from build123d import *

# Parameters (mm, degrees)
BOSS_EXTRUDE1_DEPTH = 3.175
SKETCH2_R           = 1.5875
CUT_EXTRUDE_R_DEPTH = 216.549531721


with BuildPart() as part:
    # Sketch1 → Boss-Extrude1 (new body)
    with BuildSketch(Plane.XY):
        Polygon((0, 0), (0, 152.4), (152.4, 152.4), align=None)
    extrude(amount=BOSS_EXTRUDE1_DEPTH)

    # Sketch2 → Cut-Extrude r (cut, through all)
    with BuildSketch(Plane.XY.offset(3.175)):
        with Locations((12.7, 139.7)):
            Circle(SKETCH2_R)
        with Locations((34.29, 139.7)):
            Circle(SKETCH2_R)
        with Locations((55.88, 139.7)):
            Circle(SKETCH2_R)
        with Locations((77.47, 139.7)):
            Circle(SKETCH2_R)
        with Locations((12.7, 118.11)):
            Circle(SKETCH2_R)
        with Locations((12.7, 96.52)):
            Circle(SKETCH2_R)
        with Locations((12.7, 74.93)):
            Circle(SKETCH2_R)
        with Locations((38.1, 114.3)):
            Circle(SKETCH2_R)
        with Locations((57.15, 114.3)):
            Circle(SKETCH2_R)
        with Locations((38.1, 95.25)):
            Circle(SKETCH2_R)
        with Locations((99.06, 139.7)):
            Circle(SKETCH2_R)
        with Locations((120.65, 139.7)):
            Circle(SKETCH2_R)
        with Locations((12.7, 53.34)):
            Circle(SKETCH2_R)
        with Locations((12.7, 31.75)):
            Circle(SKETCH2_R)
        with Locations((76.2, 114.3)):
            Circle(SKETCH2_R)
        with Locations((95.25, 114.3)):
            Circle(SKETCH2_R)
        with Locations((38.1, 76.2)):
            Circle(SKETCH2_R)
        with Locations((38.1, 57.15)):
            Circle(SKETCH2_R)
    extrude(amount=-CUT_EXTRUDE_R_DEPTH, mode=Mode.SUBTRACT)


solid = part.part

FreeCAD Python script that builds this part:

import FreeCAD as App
import Part
import Sketcher
Q = App.Units.Quantity

doc = App.newDocument("Part")
body = doc.addObject("PartDesign::Body", "Body")

sketch1 = body.newObject("Sketcher::SketchObject", "Sketch")
sketch1.AttachmentSupport = (doc.getObject("XY_Plane"), [""])
sketch1.MapMode = "FlatFace"
sketch1.addGeometry(Part.LineSegment(App.Vector(0, 152, 0), App.Vector(0, 0, 0)), False)
sketch1.addGeometry(Part.LineSegment(App.Vector(0, 0, 0), App.Vector(152, 152, 0)), False)
sketch1.addGeometry(Part.LineSegment(App.Vector(152, 152, 0), App.Vector(0, 152, 0)), False)
sketch1.addConstraint(Sketcher.Constraint("Coincident", 0, 2, 1, 1))
sketch1.addConstraint(Sketcher.Constraint("Coincident", 1, 2, 2, 1))
sketch1.addConstraint(Sketcher.Constraint("Coincident", 2, 2, 0, 1))
sketch1.addConstraint(Sketcher.Constraint("Vertical", 0))
sketch1.addConstraint(Sketcher.Constraint("Horizontal", 2))
sketch1.addConstraint(Sketcher.Constraint("Coincident", 0, 2, -1, 1))
sketch1.addConstraint(Sketcher.Constraint("Equal", 2, 0))
sketch1.addConstraint(Sketcher.Constraint("DistanceX", 2, 2, 2, 1, Q("6 in")))
pad1 = body.newObject("PartDesign::Pad", "Pad")
pad1.Profile = sketch1
pad1.Length = Q("0.125 in")

sketch2 = body.newObject("Sketcher::SketchObject", "Sketch001")
sketch2.AttachmentSupport = (doc.getObject("XY_Plane"), [""])
sketch2.MapMode = "FlatFace"
sketch2.AttachmentOffset = App.Placement(App.Vector(0, 0, 0.125 * 25.4), App.Rotation())
sketch2.addGeometry(Part.Circle(App.Vector(12.7, 139.7, 0), App.Vector(0, 0, 1), 1.6), False)
sketch2.addGeometry(Part.Circle(App.Vector(34.3, 139.7, 0), App.Vector(0, 0, 1), 1.6), False)
sketch2.addGeometry(Part.Circle(App.Vector(55.9, 139.7, 0), App.Vector(0, 0, 1), 1.6), False)
sketch2.addGeometry(Part.Circle(App.Vector(77.5, 139.7, 0), App.Vector(0, 0, 1), 1.6), False)
sketch2.addGeometry(Part.Circle(App.Vector(12.7, 118.1, 0), App.Vector(0, 0, 1), 1.6), False)
sketch2.addGeometry(Part.Circle(App.Vector(12.7, 96.5, 0), App.Vector(0, 0, 1), 1.6), False)
sketch2.addGeometry(Part.Circle(App.Vector(12.7, 74.9, 0), App.Vector(0, 0, 1), 1.6), False)
sketch2.addGeometry(Part.Circle(App.Vector(38.1, 114.3, 0), App.Vector(0, 0, 1), 1.6), False)
sketch2.addGeometry(Part.Circle(App.Vector(57.1, 114.3, 0), App.Vector(0, 0, 1), 1.6), False)
sketch2.addGeometry(Part.Circle(App.Vector(38.1, 95.2, 0), App.Vector(0, 0, 1), 1.6), False)
sketch2.addGeometry(Part.Circle(App.Vector(99.1, 139.7, 0), App.Vector(0, 0, 1), 1.6), False)
sketch2.addGeometry(Part.Circle(App.Vector(120.7, 139.7, 0), App.Vector(0, 0, 1), 1.6), False)
sketch2.addGeometry(Part.Circle(App.Vector(12.7, 53.3, 0), App.Vector(0, 0, 1), 1.6), False)
sketch2.addGeometry(Part.Circle(App.Vector(12.7, 31.8, 0), App.Vector(0, 0, 1), 1.6), False)
sketch2.addGeometry(Part.Circle(App.Vector(76.2, 114.3, 0), App.Vector(0, 0, 1), 1.6), False)
sketch2.addGeometry(Part.Circle(App.Vector(95.2, 114.3, 0), App.Vector(0, 0, 1), 1.6), False)
sketch2.addGeometry(Part.Circle(App.Vector(38.1, 76.2, 0), App.Vector(0, 0, 1), 1.6), False)
sketch2.addGeometry(Part.Circle(App.Vector(38.1, 57.1, 0), App.Vector(0, 0, 1), 1.6), False)
sketch2.addConstraint(Sketcher.Constraint("Equal", 0, 1))
sketch2.addConstraint(Sketcher.Constraint("Equal", 1, 2))
sketch2.addConstraint(Sketcher.Constraint("Equal", 2, 3))
sketch2.addConstraint(Sketcher.Constraint("Equal", 3, 4))
sketch2.addConstraint(Sketcher.Constraint("Equal", 4, 5))
sketch2.addConstraint(Sketcher.Constraint("Equal", 5, 6))
sketch2.addConstraint(Sketcher.Constraint("Equal", 6, 7))
sketch2.addConstraint(Sketcher.Constraint("Equal", 7, 8))
sketch2.addConstraint(Sketcher.Constraint("Equal", 8, 9))
sketch2.addConstraint(Sketcher.Constraint("Equal", 9, 10))
sketch2.addConstraint(Sketcher.Constraint("Equal", 10, 11))
sketch2.addConstraint(Sketcher.Constraint("Equal", 11, 12))
sketch2.addConstraint(Sketcher.Constraint("Equal", 12, 13))
sketch2.addConstraint(Sketcher.Constraint("Equal", 13, 14))
sketch2.addConstraint(Sketcher.Constraint("Equal", 14, 15))
sketch2.addConstraint(Sketcher.Constraint("Equal", 15, 16))
sketch2.addConstraint(Sketcher.Constraint("Equal", 16, 17))
sketch2.addConstraint(Sketcher.Constraint("Horizontal", 0, 3, 1, 3))
sketch2.addConstraint(Sketcher.Constraint("Horizontal", 1, 3, 2, 3))
sketch2.addConstraint(Sketcher.Constraint("Horizontal", 2, 3, 3, 3))
sketch2.addConstraint(Sketcher.Constraint("Horizontal", 7, 3, 8, 3))
sketch2.addConstraint(Sketcher.Constraint("Horizontal", 3, 3, 10, 3))
sketch2.addConstraint(Sketcher.Constraint("Horizontal", 10, 3, 11, 3))
sketch2.addConstraint(Sketcher.Constraint("Horizontal", 8, 3, 14, 3))
sketch2.addConstraint(Sketcher.Constraint("Horizontal", 14, 3, 15, 3))
sketch2.addConstraint(Sketcher.Constraint("Vertical", 0, 3, 4, 3))
sketch2.addConstraint(Sketcher.Constraint("Vertical", 4, 3, 5, 3))
sketch2.addConstraint(Sketcher.Constraint("Vertical", 5, 3, 6, 3))
sketch2.addConstraint(Sketcher.Constraint("Vertical", 7, 3, 9, 3))
sketch2.addConstraint(Sketcher.Constraint("Vertical", 6, 3, 12, 3))
sketch2.addConstraint(Sketcher.Constraint("Vertical", 12, 3, 13, 3))
sketch2.addConstraint(Sketcher.Constraint("Vertical", 9, 3, 16, 3))
sketch2.addConstraint(Sketcher.Constraint("Vertical", 16, 3, 17, 3))
sketch2.addConstraint(Sketcher.Constraint("Diameter", 0, Q("0.125 in")))
sketch2.addConstraint(Sketcher.Constraint("DistanceX", -1, 1, 14, 3, Q("3 in")))
sketch2.addConstraint(Sketcher.Constraint("DistanceY", -1, 1, 16, 3, Q("3 in")))
sketch2.addConstraint(Sketcher.Constraint("DistanceY", 7, 3, 1, 3, Q("1 in")))
sketch2.addConstraint(Sketcher.Constraint("DistanceX", 4, 3, 7, 3, Q("1 in")))
sketch2.addConstraint(Sketcher.Constraint("DistanceX", 15, 3, 11, 3, Q("1 in")))
sketch2.addConstraint(Sketcher.Constraint("DistanceY", 13, 3, 17, 3, Q("1 in")))
sketch2.addConstraint(Sketcher.Constraint("DistanceX", -1, 1, 0, 3, Q("0.5 in")))
sketch2.addConstraint(Sketcher.Constraint("DistanceY", -1, 1, 0, 3, Q("5.5 in")))
sketch2.addConstraint(Sketcher.Constraint("DistanceX", -1, 1, 2, 3, Q("2.2 in")))
sketch2.addConstraint(Sketcher.Constraint("DistanceY", -1, 1, 5, 3, Q("3.8 in")))
sketch2.addConstraint(Sketcher.Constraint("DistanceX", -1, 1, 10, 3, Q("3.9 in")))
sketch2.addConstraint(Sketcher.Constraint("DistanceY", -1, 1, 12, 3, Q("2.1 in")))
sketch2.addConstraint(Sketcher.Constraint("DistanceX", 1, 3, 3, 3, Q("1.7 in")))
sketch2.addConstraint(Sketcher.Constraint("DistanceY", 6, 3, 4, 3, Q("1.7 in")))
sketch2.addConstraint(Sketcher.Constraint("DistanceX", 8, 3, 3, 3, Q("0.8 in")))
sketch2.addConstraint(Sketcher.Constraint("DistanceY", 6, 3, 9, 3, Q("0.8 in")))
sketch2.addConstraint(Sketcher.Constraint("DistanceX", 3, 3, 11, 3, Q("1.7 in")))
sketch2.addConstraint(Sketcher.Constraint("DistanceY", 13, 3, 6, 3, Q("1.7 in")))
sketch2.addConstraint(Sketcher.Constraint("DistanceX", -1, 1, 1, 3, Q("1.35 in")))
sketch2.addConstraint(Sketcher.Constraint("DistanceY", -1, 1, 4, 3, Q("4.65 in")))
pocket1 = body.newObject("PartDesign::Pocket", "Pocket")
pocket1.Profile = sketch2
pocket1.Type = "ThroughAll"

doc.recompute()
